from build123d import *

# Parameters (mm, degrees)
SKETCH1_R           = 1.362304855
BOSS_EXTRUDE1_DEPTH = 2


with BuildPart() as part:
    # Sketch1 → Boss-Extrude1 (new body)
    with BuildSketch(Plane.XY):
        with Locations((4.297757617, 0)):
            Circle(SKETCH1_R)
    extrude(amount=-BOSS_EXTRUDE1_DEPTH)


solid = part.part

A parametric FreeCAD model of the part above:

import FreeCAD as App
import Part
import Sketcher
from FreeCAD import Vector

doc = App.newDocument("Part")
body = doc.addObject("PartDesign::Body", "Body")

sketch1 = doc.addObject("Sketcher::SketchObject", "Sketch")
body.addObject(sketch1)
sketch1.AttachmentSupport = (doc.XY_Plane, [""])
sketch1.MapMode = "FlatFace"
sketch1.addGeometry(Part.Circle(Vector(4.3, 0, 0), Vector(0, 0, 1), 1.4), False)
sketch1.addConstraint(Sketcher.Constraint("PointOnObject", 0, 3, -1))
sketch1.addConstraint(Sketcher.Constraint("Diameter", 0, 2.72461))
sketch1.addConstraint(Sketcher.Constraint("DistanceX", -1, 1, 0, 3, 4.297758))
pad1 = doc.addObject("PartDesign::Pad", "Pad")
body.addObject(pad1)
pad1.Profile = sketch1
pad1.Length = 2
pad1.Reversed = True

doc.recompute()
